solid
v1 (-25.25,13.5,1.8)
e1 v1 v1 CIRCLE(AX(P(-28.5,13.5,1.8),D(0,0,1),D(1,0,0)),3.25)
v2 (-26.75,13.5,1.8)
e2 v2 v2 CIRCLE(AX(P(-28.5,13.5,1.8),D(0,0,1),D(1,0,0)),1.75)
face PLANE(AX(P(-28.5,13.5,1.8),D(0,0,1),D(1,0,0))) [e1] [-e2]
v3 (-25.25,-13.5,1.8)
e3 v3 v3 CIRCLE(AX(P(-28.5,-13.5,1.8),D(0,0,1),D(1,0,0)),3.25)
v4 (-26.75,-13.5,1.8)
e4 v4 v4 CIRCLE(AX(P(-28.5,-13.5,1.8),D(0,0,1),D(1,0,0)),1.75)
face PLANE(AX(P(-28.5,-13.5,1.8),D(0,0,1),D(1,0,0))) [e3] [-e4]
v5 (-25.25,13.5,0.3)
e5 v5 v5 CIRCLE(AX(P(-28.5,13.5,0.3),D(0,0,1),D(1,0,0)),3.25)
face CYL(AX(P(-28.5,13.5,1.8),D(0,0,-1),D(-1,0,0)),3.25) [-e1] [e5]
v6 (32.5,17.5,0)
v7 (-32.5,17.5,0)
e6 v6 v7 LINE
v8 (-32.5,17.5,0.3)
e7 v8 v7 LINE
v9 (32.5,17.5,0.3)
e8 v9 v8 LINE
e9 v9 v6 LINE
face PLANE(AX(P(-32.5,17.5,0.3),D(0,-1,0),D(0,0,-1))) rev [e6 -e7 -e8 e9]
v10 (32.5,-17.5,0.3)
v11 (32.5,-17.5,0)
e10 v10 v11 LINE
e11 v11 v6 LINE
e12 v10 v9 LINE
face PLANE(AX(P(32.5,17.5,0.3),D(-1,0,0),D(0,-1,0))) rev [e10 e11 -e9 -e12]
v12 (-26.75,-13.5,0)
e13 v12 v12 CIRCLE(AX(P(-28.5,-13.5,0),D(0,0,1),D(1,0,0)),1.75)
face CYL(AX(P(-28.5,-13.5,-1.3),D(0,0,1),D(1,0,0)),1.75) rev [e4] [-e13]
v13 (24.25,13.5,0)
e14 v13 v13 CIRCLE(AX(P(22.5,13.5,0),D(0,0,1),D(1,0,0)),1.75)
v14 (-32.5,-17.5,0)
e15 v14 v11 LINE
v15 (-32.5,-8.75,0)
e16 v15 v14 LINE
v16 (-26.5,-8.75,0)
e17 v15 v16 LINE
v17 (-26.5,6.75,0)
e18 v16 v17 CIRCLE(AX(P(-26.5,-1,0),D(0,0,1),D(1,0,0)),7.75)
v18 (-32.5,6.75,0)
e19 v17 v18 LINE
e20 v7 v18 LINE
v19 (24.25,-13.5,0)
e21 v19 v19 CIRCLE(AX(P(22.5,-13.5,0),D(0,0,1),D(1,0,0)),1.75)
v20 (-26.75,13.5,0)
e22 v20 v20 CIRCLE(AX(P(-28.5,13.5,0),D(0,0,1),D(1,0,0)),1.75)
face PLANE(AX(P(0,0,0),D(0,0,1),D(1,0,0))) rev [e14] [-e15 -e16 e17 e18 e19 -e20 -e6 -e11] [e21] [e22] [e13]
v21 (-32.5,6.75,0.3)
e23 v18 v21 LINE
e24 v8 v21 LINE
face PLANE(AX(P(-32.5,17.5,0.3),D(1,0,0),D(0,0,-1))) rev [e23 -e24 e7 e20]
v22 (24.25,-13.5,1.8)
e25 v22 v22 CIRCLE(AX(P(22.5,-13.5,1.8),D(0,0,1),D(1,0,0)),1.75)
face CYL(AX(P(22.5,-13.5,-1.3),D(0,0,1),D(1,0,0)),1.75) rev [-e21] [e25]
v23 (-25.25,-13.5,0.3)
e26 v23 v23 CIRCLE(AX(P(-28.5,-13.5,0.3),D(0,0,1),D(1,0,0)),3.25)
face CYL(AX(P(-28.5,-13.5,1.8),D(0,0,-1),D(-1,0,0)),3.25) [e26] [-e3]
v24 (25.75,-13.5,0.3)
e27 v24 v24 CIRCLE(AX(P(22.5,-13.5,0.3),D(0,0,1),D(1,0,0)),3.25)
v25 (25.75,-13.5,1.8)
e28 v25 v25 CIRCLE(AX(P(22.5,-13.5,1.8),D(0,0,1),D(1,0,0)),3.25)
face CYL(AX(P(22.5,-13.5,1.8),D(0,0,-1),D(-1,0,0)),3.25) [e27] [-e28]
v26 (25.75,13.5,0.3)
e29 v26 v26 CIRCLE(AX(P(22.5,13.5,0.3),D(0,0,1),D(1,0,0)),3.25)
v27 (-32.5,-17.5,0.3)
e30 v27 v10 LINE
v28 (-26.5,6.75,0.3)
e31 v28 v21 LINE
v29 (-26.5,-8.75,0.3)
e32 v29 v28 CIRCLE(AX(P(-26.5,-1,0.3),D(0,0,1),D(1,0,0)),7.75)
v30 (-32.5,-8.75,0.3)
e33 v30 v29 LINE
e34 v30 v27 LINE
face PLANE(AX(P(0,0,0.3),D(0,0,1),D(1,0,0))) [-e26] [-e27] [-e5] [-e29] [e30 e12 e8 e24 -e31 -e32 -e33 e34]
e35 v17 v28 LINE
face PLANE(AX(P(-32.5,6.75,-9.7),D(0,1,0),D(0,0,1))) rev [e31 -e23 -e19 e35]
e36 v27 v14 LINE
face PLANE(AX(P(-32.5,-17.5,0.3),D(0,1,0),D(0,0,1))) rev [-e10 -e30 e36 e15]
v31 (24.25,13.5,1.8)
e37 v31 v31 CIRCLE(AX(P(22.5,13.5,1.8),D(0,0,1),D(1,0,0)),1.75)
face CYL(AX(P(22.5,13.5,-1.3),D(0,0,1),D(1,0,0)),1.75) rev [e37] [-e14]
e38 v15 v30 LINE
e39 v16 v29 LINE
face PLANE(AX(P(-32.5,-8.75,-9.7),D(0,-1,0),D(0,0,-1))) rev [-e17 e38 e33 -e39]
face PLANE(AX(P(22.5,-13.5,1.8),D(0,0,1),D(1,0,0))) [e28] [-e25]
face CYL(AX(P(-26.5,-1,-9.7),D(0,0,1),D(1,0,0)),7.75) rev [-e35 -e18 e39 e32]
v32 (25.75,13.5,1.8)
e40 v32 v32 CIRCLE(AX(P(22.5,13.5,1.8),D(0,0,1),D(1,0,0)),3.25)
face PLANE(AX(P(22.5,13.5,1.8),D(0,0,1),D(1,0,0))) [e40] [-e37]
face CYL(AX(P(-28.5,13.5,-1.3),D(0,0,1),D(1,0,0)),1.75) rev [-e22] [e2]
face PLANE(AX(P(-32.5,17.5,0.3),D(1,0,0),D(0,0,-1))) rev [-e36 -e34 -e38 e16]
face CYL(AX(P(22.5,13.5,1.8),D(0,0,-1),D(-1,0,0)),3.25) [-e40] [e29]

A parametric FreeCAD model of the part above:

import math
import FreeCAD as App
import Part
import Sketcher
Q = App.Units.Quantity

doc = App.newDocument("Part")
body = doc.addObject("PartDesign::Body", "Body")

# Sketch on XY plane
sketch1 = body.newObject("Sketcher::SketchObject", "Sketch")
sketch1.AttachmentSupport = (doc.getObject("XY_Plane"), [""])
sketch1.MapMode = "FlatFace"
sketch1.addGeometry([
    Part.LineSegment(App.Vector(-32.5, 17.5, 0), App.Vector(-32.5, -17.5, 0)),
    Part.LineSegment(App.Vector(-32.5, -17.5, 0), App.Vector(32.5, -17.5, 0)),
    Part.LineSegment(App.Vector(32.5, -17.5, 0), App.Vector(32.5, 17.5, 0)),
    Part.LineSegment(App.Vector(32.5, 17.5, 0), App.Vector(-32.5, 17.5, 0)),
], False)
sketch1.addConstraint([
    Sketcher.Constraint("Coincident", 0, 2, 1, 1),
    Sketcher.Constraint("Coincident", 1, 2, 2, 1),
    Sketcher.Constraint("Coincident", 2, 2, 3, 1),
    Sketcher.Constraint("Coincident", 3, 2, 0, 1),
    Sketcher.Constraint("Vertical", 0),
    Sketcher.Constraint("Horizontal", 1),
    Sketcher.Constraint("Vertical", 2),
    Sketcher.Constraint("Horizontal", 3),
    Sketcher.Constraint("Symmetric", 0, 2, 2, 2, -1, 1),
    Sketcher.Constraint("DistanceX", 1, 1, 1, 2, Q("65 mm")),
    Sketcher.Constraint("DistanceY", 0, 2, 0, 1, Q("35 mm")),
])
pad1 = body.newObject("PartDesign::Pad", "Pad")
pad1.Profile = sketch1
pad1.Length = 0.3

# Sketch on XY plane
sketch2 = body.newObject("Sketcher::SketchObject", "Sketch001")
sketch2.AttachmentSupport = (doc.getObject("XY_Plane"), [""])
sketch2.MapMode = "FlatFace"
sketch2.AttachmentOffset = App.Placement(App.Vector(0, 0, 0.3), App.Rotation())
sketch2.addGeometry([
    Part.Circle(App.Vector(-28.5, 13.5, 0), App.Vector(0, 0, 1), 1.75),
    Part.Circle(App.Vector(-28.5, -13.5, 0), App.Vector(0, 0, 1), 1.75),
    Part.Circle(App.Vector(22.5, 13.5, 0), App.Vector(0, 0, 1), 1.75),
    Part.Circle(App.Vector(22.5, -13.5, 0), App.Vector(0, 0, 1), 1.75),
], False)
sketch2.addConstraint([
    Sketcher.Constraint("Equal", 0, 1),
    Sketcher.Constraint("Equal", 1, 2),
    Sketcher.Constraint("Equal", 2, 3),
    Sketcher.Constraint("Symmetric", 0, 3, 1, 3, -1),
    Sketcher.Constraint("Symmetric", 2, 3, 3, 3, -1),
    Sketcher.Constraint("Horizontal", 0, 3, 2, 3),
    Sketcher.Constraint("Diameter", 0, Q("3.5 mm")),
    Sketcher.Constraint("DistanceY", 1, 3, 0, 3, Q("27 mm")),
    Sketcher.Constraint("DistanceX", 0, 3, 2, 3, Q("51 mm")),
    Sketcher.Constraint("DistanceX", 0, 3, -1, 1, Q("28.5 mm")),
])
pocket1 = body.newObject("PartDesign::Pocket", "Pocket")
pocket1.Profile = sketch2
pocket1.Length = 1.6

# Sketch on XY plane
sketch3 = body.newObject("Sketcher::SketchObject", "Sketch002")
sketch3.AttachmentSupport = (doc.getObject("XY_Plane"), [""])
sketch3.MapMode = "FlatFace"
sketch3.AttachmentOffset = App.Placement(App.Vector(0, 0, 0.3), App.Rotation())
sketch3.addGeometry([
    Part.Circle(App.Vector(-28.5, 13.5, 0), App.Vector(0, 0, 1), 3.25),  # 0
    Part.Circle(App.Vector(-28.5, 13.5, 0), App.Vector(0, 0, 1), 1.75),  # 1
    Part.Circle(App.Vector(-28.5, -13.5, 0), App.Vector(0, 0, 1), 3.25),  # 2
    Part.Circle(App.Vector(-28.5, -13.5, 0), App.Vector(0, 0, 1), 1.75),  # 3
    Part.Circle(App.Vector(22.5, -13.5, 0), App.Vector(0, 0, 1), 3.25),  # 4
    Part.Circle(App.Vector(22.5, -13.5, 0), App.Vector(0, 0, 1), 1.75),  # 5
    Part.Circle(App.Vector(22.5, 13.5, 0), App.Vector(0, 0, 1), 3.25),  # 6
    Part.Circle(App.Vector(22.5, 13.5, 0), App.Vector(0, 0, 1), 1.75),  # 7
], False)
sketch3.addConstraint([
    Sketcher.Constraint("Coincident", 1, 3, 0, 3),
    Sketcher.Constraint("Coincident", 3, 3, 2, 3),
    Sketcher.Constraint("Coincident", 5, 3, 4, 3),
    Sketcher.Constraint("Coincident", 7, 3, 6, 3),
    Sketcher.Constraint("Equal", 0, 2),
    Sketcher.Constraint("Equal", 1, 3),
    Sketcher.Constraint("Equal", 2, 4),
    Sketcher.Constraint("Equal", 3, 5),
    Sketcher.Constraint("Equal", 4, 6),
    Sketcher.Constraint("Equal", 5, 7),
    Sketcher.Constraint("Symmetric", 0, 3, 2, 3, -1),
    Sketcher.Constraint("Symmetric", 4, 3, 6, 3, -1),
    Sketcher.Constraint("Horizontal", 3, 3, 4, 3),
    Sketcher.Constraint("Diameter", 0, Q("6.5 mm")),
    Sketcher.Constraint("Diameter", 1, Q("3.5 mm")),
    Sketcher.Constraint("DistanceY", 2, 3, 0, 3, Q("27 mm")),
    Sketcher.Constraint("DistanceX", 2, 3, 4, 3, Q("51 mm")),
    Sketcher.Constraint("DistanceX", 0, 3, -1, 1, Q("28.5 mm")),
])
pad2 = body.newObject("PartDesign::Pad", "Pad001")
pad2.Profile = sketch3
pad2.Length = 1.5

# Sketch on XY plane
sketch4 = body.newObject("Sketcher::SketchObject", "Sketch003")
sketch4.AttachmentSupport = (doc.getObject("XY_Plane"), [""])
sketch4.MapMode = "FlatFace"
sketch4.AttachmentOffset = App.Placement(App.Vector(0, 0, 0.3), App.Rotation())
sketch4.addGeometry([
    Part.LineSegment(App.Vector(-26.5, 6.75, 0), App.Vector(-32.5, 6.75, 0)),
    Part.ArcOfCircle(Part.Circle(App.Vector(-32.5, -1, 0), App.Vector(0, 0, 1), 7.75), math.radians(90), math.radians(270)),
    Part.LineSegment(App.Vector(-32.5, -8.75, 0), App.Vector(-26.5, -8.75, 0)),
    Part.ArcOfCircle(Part.Circle(App.Vector(-26.5, -1, 0), App.Vector(0, 0, 1), 7.75), math.radians(-90), math.radians(90)),
], False)
sketch4.addConstraint([
    Sketcher.Constraint("Tangent", 0, 2, 1, 1),
    Sketcher.Constraint("Tangent", 1, 2, 2, 1),
    Sketcher.Constraint("Tangent", 2, 2, 3, 1),
    Sketcher.Constraint("Tangent", 3, 2, 0, 1),
    Sketcher.Constraint("Horizontal", 0),
    Sketcher.Constraint("Horizontal", 2),
    Sketcher.Constraint("DistanceX", 0, 2, 0, 1, Q("6 mm")),
    Sketcher.Constraint("Radius", 1, Q("7.75 mm")),
    Sketcher.Constraint("DistanceY", 1, 3, -1, 1, Q("1 mm")),
    Sketcher.Constraint("DistanceX", 1, 3, -1, 1, Q("32.5 mm")),
])
pocket2 = body.newObject("PartDesign::Pocket", "Pocket001")
pocket2.Profile = sketch4
pocket2.Length = 10

doc.recompute()
